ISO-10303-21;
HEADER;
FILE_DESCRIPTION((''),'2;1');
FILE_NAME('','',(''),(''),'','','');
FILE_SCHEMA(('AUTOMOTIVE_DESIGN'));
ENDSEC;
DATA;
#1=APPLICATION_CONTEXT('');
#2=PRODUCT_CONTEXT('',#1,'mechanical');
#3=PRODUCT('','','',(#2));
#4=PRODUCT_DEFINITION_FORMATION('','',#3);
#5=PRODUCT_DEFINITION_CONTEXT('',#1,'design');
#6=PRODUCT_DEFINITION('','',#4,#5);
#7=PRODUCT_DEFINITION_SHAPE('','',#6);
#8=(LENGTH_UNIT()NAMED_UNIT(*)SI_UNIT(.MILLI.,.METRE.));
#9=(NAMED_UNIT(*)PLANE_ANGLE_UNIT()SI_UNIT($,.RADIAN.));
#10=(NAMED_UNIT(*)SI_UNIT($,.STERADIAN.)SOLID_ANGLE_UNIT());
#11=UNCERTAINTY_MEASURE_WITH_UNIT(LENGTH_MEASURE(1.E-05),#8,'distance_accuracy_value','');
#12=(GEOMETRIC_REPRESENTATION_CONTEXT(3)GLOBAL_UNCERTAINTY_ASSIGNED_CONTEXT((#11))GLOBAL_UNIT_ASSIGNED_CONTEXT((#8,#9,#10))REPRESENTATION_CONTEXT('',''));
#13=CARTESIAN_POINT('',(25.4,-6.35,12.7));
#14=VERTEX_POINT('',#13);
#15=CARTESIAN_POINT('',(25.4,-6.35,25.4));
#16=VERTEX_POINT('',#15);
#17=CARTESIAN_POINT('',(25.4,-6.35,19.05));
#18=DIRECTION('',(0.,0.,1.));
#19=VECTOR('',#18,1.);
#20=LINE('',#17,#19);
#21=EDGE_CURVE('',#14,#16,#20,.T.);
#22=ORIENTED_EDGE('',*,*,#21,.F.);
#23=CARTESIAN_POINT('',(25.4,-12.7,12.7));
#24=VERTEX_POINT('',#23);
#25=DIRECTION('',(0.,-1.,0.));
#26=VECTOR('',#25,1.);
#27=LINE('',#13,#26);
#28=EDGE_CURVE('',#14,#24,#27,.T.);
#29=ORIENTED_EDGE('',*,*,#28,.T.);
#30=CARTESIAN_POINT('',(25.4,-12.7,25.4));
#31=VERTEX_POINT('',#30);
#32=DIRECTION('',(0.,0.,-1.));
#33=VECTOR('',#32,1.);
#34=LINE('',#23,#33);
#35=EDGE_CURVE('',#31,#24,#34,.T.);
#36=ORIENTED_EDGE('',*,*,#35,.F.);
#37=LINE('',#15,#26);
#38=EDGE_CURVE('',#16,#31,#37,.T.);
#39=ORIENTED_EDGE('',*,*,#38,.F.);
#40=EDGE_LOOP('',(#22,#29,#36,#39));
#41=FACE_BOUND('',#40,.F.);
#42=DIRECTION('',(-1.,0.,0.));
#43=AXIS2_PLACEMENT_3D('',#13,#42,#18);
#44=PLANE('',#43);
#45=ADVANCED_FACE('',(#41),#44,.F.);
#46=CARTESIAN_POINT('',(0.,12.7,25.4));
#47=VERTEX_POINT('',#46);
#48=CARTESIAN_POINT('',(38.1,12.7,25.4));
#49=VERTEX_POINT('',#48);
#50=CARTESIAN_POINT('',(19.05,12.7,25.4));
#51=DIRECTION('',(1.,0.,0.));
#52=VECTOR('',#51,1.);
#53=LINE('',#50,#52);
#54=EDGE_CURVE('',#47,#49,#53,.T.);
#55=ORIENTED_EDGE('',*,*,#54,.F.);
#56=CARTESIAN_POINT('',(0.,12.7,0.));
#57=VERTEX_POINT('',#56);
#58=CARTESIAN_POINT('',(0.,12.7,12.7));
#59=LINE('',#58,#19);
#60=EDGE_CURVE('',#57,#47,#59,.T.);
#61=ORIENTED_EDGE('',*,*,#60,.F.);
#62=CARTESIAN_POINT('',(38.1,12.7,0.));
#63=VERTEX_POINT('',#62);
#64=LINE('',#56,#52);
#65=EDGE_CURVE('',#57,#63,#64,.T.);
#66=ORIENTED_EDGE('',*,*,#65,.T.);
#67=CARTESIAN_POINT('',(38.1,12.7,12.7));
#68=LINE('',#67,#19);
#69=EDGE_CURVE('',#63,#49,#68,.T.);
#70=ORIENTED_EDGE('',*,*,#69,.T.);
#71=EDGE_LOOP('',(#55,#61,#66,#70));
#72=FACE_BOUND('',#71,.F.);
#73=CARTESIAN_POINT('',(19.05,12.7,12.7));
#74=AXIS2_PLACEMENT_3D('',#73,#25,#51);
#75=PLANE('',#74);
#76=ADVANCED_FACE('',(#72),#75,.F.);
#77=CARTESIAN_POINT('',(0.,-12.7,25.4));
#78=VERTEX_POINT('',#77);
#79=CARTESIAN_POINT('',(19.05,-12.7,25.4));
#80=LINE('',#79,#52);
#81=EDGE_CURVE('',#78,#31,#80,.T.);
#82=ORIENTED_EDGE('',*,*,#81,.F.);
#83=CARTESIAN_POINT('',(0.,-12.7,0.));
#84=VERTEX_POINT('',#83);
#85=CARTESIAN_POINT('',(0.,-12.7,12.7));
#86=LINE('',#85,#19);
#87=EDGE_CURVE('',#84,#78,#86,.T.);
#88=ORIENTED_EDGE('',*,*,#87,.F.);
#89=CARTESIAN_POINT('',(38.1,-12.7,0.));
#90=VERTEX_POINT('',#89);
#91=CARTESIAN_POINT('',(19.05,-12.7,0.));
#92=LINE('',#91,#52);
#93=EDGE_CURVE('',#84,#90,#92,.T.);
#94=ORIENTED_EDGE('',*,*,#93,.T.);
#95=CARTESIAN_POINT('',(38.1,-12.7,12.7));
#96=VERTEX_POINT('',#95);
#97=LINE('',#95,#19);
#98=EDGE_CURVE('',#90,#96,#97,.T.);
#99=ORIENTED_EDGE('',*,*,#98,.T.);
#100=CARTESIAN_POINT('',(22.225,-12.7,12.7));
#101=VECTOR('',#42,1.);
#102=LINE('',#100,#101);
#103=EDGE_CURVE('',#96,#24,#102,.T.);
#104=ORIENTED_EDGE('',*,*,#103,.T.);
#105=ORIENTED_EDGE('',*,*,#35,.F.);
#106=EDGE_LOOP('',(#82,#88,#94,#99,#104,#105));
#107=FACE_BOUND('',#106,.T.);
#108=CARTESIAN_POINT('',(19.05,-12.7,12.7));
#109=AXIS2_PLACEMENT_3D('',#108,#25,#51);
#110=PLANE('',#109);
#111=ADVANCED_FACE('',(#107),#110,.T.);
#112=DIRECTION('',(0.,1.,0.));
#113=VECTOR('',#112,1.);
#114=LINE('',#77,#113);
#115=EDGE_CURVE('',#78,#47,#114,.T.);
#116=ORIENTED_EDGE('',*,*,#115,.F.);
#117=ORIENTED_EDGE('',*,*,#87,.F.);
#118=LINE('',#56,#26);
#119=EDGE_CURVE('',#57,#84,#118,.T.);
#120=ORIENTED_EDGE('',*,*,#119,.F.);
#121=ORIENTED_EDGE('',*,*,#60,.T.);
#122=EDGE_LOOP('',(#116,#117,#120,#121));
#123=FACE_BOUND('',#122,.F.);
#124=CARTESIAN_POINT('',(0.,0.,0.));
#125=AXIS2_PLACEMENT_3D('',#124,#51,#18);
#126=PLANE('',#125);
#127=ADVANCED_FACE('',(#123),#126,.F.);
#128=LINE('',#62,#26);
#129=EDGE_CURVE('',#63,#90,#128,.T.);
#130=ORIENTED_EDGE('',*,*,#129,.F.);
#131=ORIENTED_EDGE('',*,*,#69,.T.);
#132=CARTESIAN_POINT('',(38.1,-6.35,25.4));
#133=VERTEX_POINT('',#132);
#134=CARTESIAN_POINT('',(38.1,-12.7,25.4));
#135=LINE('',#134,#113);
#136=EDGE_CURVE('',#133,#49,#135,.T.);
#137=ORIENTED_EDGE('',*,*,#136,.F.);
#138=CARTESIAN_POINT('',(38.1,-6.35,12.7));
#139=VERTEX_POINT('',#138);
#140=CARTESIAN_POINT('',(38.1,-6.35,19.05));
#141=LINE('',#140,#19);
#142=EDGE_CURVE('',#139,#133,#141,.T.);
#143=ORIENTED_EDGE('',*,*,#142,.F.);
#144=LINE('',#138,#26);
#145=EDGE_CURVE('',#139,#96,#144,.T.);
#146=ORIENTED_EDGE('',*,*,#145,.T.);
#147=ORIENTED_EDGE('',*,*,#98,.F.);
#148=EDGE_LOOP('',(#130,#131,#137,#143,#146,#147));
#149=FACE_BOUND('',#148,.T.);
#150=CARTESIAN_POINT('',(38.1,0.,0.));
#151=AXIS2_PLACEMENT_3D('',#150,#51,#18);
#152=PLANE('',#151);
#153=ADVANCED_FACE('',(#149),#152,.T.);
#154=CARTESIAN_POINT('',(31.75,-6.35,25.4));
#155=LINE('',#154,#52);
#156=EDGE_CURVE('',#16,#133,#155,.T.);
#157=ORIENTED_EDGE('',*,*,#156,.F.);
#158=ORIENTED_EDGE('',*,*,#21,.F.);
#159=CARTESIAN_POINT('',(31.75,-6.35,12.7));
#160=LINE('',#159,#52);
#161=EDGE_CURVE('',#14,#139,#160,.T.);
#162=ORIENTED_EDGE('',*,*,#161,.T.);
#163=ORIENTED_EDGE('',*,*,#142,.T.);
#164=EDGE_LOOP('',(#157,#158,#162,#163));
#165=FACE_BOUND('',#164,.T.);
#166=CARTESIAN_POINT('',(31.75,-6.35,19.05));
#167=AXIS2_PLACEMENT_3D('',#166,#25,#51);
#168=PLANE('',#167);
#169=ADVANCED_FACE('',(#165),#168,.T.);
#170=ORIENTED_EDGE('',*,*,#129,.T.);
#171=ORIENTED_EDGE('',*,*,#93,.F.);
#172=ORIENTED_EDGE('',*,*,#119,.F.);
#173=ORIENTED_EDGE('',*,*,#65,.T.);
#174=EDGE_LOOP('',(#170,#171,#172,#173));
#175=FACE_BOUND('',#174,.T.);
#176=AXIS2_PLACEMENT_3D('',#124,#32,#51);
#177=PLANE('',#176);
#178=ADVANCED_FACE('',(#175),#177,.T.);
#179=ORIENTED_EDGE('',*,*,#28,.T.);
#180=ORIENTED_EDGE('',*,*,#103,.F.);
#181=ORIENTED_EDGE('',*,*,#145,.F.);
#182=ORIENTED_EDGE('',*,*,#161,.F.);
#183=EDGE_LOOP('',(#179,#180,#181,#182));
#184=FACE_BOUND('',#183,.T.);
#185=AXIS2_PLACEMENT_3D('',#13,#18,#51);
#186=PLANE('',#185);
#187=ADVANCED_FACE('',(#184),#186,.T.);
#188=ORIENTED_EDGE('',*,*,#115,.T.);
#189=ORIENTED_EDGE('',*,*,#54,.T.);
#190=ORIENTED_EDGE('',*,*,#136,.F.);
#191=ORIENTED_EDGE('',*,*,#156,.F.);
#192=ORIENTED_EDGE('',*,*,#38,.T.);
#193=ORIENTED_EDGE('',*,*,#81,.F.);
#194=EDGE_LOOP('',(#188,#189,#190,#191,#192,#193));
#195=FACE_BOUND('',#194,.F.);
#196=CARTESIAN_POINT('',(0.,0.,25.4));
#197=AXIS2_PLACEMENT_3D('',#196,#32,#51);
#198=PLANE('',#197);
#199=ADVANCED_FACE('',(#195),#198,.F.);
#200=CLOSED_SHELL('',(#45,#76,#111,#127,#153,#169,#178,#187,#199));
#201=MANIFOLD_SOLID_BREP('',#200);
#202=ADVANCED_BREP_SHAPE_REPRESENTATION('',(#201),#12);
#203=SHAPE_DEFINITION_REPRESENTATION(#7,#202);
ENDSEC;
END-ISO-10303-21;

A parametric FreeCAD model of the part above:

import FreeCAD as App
import Part
import Sketcher
Q = App.Units.Quantity


def add_polygon(sketch, points):
    """Adds a closed chain of lines whose ends are joined by coincident constraints."""
    first, n = sketch.GeometryCount, len(points)
    for a, b in zip(points, points[1:] + points[:1]):
        sketch.addGeometry(Part.LineSegment(App.Vector(*a, 0), App.Vector(*b, 0)), False)
    for i in range(n):
        sketch.addConstraint(Sketcher.Constraint("Coincident", first + i, 2, first + (i + 1) % n, 1))

doc = App.newDocument("Part")
body = doc.addObject("PartDesign::Body", "Body")

# Sketch on XZ plane
sketch1 = doc.addObject("Sketcher::SketchObject", "Sketch")
body.addObject(sketch1)
sketch1.AttachmentSupport = (doc.XZ_Plane, [""])
sketch1.MapMode = "FlatFace"
add_polygon(sketch1, [(0, 25), (0, 0), (38, 0), (38, 25)])  # lines 0-3
sketch1.addConstraint([
    Sketcher.Constraint("Vertical", 0),
    Sketcher.Constraint("Horizontal", 1),
    Sketcher.Constraint("Vertical", 2),
    Sketcher.Constraint("Horizontal", 3),
    Sketcher.Constraint("Coincident", 0, 2, -1, 1),
    Sketcher.Constraint("DistanceY", 0, 2, 0, 1, Q("1 in")),
    Sketcher.Constraint("DistanceX", 1, 1, 1, 2, Q("1.5 in")),
])
pad1 = doc.addObject("PartDesign::Pad", "Pad")
body.addObject(pad1)
pad1.Profile = sketch1
pad1.Length = Q("1 in")
pad1.Midplane = True

# Sketch on XZ plane
sketch2 = doc.addObject("Sketcher::SketchObject", "Sketch001")
body.addObject(sketch2)
sketch2.AttachmentSupport = (doc.XZ_Plane, [""])
sketch2.MapMode = "FlatFace"
sketch2.AttachmentOffset = App.Placement(App.Vector(0, 0, 0.25 * 25.4), App.Rotation())
add_polygon(sketch2, [(25, 25), (25, 13), (38, 13), (38, 25)])  # lines 0-3
sketch2.addConstraint([
    Sketcher.Constraint("Vertical", 0),
    Sketcher.Constraint("Horizontal", 1),
    Sketcher.Constraint("Vertical", 2),
    Sketcher.Constraint("Horizontal", 3),
    Sketcher.Constraint("Equal", 3, 0),
    Sketcher.Constraint("DistanceX", 1, 1, 1, 2, Q("0.5 in")),
    Sketcher.Constraint("DistanceX", -1, 1, 0, 2, Q("1 in")),
    Sketcher.Constraint("DistanceY", -1, 1, 2, 2, Q("1 in")),
])
pocket1 = doc.addObject("PartDesign::Pocket", "Pocket")
body.addObject(pocket1)
pocket1.Profile = sketch2
pocket1.Length = Q("0.75 in")
pocket1.Reversed = True

# Sketch on XY plane
sketch3 = doc.addObject("Sketcher::SketchObject", "Sketch002")
body.addObject(sketch3)
sketch3.AttachmentSupport = (doc.XY_Plane, [""])
sketch3.MapMode = "FlatFace"
add_polygon(sketch3, [(0, 13), (0, 6), (13, 6), (13, 13)])  # lines 0-3
sketch3.addConstraint([
    Sketcher.Constraint("Vertical", 0),
    Sketcher.Constraint("Horizontal", 1),
    Sketcher.Constraint("Vertical", 2),
    Sketcher.Constraint("Horizontal", 3),
    Sketcher.Constraint("PointOnObject", 0, 2, -2),
    Sketcher.Constraint("DistanceX", 1, 1, 1, 2, Q("0.5 in")),
    Sketcher.Constraint("DistanceY", 0, 2, 0, 1, Q("0.25 in")),
    Sketcher.Constraint("DistanceY", -1, 1, 2, 2, Q("0.5 in")),
])
pocket2 = doc.addObject("PartDesign::Pocket", "Pocket001")
body.addObject(pocket2)
pocket2.Profile = sketch3
pocket2.Length = Q("1 in")

doc.recompute()
